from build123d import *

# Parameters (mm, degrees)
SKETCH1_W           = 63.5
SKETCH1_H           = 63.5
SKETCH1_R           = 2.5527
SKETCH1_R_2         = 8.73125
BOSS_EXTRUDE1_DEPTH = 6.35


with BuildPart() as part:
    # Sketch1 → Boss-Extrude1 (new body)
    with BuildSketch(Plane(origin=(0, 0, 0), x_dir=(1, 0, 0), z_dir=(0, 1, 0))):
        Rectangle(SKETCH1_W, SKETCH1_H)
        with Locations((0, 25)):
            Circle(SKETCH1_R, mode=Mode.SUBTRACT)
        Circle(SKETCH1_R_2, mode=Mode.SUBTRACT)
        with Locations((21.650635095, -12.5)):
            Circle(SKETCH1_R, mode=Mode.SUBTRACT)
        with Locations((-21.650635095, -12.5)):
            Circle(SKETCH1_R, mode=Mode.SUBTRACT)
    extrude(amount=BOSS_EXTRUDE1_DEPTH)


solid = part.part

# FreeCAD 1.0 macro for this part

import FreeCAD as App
import Part
import Sketcher

V = App.Vector
Q = App.Units.Quantity

doc = App.newDocument("Part")
body = doc.addObject("PartDesign::Body", "Body")

# Sketch on XZ plane
sketch1 = body.newObject("Sketcher::SketchObject", "Sketch")
sketch1.AttachmentSupport = (doc.getObject("XZ_Plane"), [""])
sketch1.MapMode = "FlatFace"
sketch1.addGeometry([
    Part.LineSegment(V(-31.8, -31.8, 0), V(-31.8, 31.8, 0)),  # 0
    Part.LineSegment(V(-31.8, 31.8, 0), V(31.8, 31.8, 0)),  # 1
    Part.LineSegment(V(31.8, 31.8, 0), V(31.8, -31.8, 0)),  # 2
    Part.LineSegment(V(31.8, -31.8, 0), V(-31.8, -31.8, 0)),  # 3
    Part.Circle(V(-21.7, 12.5, 0), V(0, 0, 1), 2.6),  # 4
    Part.Circle(V(21.7, 12.5, 0), V(0, 0, 1), 2.6),  # 5
    Part.Circle(V(0, 0, 0), V(0, 0, 1), 8.7),  # 6
    Part.Circle(V(0, -25, 0), V(0, 0, 1), 2.6),  # 7
], False)
sketch1.addConstraint([
    Sketcher.Constraint("Coincident", 0, 2, 1, 1),
    Sketcher.Constraint("Coincident", 1, 2, 2, 1),
    Sketcher.Constraint("Coincident", 2, 2, 3, 1),
    Sketcher.Constraint("Coincident", 3, 2, 0, 1),
    Sketcher.Constraint("Vertical", 0),
    Sketcher.Constraint("Horizontal", 1),
    Sketcher.Constraint("Vertical", 2),
    Sketcher.Constraint("Horizontal", 3),
    Sketcher.Constraint("Coincident", 6, 3, -1, 1),
    Sketcher.Constraint("Equal", 4, 5),
    Sketcher.Constraint("Equal", 5, 7),
    Sketcher.Constraint("Symmetric", 0, 2, 2, 2, -1, 1),
    Sketcher.Constraint("Symmetric", 4, 3, 5, 3, -2),
    Sketcher.Constraint("PointOnObject", 7, 3, -2),
    Sketcher.Constraint("Equal", 3, 0),
    Sketcher.Constraint("Diameter", 4, Q("0.201 in")),
    Sketcher.Constraint("Diameter", 6, Q("0.6875 in")),
    Sketcher.Constraint("DistanceX", 1, 1, 1, 2, Q("2.5 in")),
    Sketcher.Constraint("DistanceY", -1, 1, 4, 3, Q("12.5 mm")),
    Sketcher.Constraint("DistanceY", 7, 3, -1, 1, Q("25 mm")),
    Sketcher.Constraint("DistanceX", 4, 3, 5, 3, Q("43.30127 mm")),
])
pad1 = body.newObject("PartDesign::Pad", "Pad")
pad1.Profile = sketch1
pad1.Length = Q("0.25 in")
pad1.Reversed = True

doc.recompute()
